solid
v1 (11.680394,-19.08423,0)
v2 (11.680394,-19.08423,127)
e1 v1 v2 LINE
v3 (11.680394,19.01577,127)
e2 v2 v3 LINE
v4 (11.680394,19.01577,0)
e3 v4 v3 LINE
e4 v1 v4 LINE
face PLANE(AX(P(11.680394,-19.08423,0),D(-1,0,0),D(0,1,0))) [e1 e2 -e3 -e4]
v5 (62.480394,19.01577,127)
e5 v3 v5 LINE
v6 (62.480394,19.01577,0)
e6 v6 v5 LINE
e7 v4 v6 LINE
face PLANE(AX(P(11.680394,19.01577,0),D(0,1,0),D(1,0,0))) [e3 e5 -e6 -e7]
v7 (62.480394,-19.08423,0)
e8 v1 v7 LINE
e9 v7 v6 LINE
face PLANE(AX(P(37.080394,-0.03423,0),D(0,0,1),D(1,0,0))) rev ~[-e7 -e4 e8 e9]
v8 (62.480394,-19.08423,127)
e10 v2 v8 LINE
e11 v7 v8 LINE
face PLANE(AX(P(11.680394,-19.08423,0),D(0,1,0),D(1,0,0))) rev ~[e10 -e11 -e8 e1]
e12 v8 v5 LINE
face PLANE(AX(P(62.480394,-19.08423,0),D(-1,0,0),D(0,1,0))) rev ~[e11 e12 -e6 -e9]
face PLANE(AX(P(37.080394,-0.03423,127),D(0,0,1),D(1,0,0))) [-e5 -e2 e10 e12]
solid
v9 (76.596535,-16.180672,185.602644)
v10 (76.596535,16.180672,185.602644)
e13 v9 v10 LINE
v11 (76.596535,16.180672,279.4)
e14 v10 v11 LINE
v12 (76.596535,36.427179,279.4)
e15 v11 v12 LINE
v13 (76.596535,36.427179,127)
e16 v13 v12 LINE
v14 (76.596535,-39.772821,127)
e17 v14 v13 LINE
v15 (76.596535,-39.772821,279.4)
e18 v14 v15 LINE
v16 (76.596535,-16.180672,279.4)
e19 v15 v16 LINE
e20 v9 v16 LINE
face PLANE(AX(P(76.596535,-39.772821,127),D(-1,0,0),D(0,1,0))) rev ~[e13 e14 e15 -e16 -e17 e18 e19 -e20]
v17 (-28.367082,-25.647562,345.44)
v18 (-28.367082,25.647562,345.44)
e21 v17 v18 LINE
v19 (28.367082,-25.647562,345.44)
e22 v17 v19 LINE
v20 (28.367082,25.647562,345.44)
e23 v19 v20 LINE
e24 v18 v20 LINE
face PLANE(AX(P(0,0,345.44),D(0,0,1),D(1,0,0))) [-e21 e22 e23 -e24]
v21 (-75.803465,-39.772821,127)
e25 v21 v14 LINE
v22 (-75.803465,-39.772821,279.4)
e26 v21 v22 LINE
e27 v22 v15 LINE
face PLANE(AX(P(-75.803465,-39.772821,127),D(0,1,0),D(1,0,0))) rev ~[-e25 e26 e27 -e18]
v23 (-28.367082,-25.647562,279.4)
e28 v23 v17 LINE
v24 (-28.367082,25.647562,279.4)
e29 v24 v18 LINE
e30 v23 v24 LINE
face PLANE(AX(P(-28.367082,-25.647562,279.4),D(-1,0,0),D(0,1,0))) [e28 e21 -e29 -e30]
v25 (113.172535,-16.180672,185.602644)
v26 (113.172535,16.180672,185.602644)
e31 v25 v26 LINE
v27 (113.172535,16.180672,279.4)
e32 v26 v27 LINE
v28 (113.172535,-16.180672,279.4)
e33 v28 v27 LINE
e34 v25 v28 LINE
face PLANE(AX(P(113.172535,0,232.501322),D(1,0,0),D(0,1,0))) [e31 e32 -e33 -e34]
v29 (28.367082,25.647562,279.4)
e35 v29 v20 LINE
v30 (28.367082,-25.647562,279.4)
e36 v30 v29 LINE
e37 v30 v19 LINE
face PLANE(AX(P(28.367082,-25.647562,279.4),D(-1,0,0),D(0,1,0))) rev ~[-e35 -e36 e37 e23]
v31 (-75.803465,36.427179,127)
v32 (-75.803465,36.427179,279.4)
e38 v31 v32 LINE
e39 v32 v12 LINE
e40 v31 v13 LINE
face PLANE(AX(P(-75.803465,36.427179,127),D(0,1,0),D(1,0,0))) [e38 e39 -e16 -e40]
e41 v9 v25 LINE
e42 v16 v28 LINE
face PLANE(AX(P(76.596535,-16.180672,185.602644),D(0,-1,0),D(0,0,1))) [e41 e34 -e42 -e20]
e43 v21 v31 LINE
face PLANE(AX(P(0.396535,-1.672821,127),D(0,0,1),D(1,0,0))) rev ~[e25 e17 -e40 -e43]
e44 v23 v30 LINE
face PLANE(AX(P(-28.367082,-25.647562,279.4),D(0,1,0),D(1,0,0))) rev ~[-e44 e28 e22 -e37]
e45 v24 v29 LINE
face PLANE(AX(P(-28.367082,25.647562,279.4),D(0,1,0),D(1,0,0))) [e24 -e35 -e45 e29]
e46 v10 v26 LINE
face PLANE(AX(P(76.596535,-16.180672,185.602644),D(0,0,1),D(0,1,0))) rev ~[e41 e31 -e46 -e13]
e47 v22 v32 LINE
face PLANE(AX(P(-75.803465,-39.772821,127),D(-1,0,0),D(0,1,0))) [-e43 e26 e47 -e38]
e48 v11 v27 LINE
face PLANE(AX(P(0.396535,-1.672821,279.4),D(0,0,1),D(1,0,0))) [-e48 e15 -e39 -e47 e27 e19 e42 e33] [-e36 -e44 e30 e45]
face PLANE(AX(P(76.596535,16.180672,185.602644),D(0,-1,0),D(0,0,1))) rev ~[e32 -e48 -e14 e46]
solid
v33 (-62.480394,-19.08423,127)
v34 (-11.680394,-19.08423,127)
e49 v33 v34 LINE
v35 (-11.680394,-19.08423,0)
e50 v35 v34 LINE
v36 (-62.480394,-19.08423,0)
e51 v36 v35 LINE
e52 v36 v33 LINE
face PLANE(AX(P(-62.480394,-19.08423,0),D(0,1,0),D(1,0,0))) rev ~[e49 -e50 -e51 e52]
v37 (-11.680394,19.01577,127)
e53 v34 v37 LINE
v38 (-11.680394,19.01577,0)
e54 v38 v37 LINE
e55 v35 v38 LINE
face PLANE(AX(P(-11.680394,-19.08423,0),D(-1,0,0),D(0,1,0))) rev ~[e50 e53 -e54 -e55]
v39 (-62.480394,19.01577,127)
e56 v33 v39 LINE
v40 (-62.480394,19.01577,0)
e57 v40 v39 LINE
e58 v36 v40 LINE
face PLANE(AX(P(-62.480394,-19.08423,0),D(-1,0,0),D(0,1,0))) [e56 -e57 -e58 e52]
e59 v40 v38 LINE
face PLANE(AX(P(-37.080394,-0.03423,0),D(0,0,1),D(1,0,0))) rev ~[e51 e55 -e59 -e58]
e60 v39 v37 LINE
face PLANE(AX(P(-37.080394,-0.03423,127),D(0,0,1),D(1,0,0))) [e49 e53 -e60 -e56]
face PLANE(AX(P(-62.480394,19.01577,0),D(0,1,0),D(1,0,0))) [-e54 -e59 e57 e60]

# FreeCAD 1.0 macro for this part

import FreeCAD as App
import Part
import Sketcher

V = App.Vector
Q = App.Units.Quantity

doc = App.newDocument("Part")
body = doc.addObject("PartDesign::Body", "Body")

sketch1 = body.newObject("Sketcher::SketchObject", "Sketch")
sketch1.AttachmentSupport = (doc.getObject("XY_Plane"), [""])
sketch1.MapMode = "FlatFace"
sketch1.addGeometry([
    Part.LineSegment(V(-62, 19, 0), V(-62, -19, 0)),
    Part.LineSegment(V(-62, -19, 0), V(-12, -19, 0)),
    Part.LineSegment(V(-12, -19, 0), V(-12, 19, 0)),
    Part.LineSegment(V(-12, 19, 0), V(-62, 19, 0)),
], False)
sketch1.addConstraint([
    Sketcher.Constraint("Coincident", 0, 2, 1, 1),
    Sketcher.Constraint("Coincident", 1, 2, 2, 1),
    Sketcher.Constraint("Coincident", 2, 2, 3, 1),
    Sketcher.Constraint("Coincident", 3, 2, 0, 1),
    Sketcher.Constraint("Vertical", 0),
    Sketcher.Constraint("Horizontal", 1),
    Sketcher.Constraint("Vertical", 2),
    Sketcher.Constraint("Horizontal", 3),
    Sketcher.Constraint("DistanceX", 1, 1, 1, 2, Q("2 in")),
    Sketcher.Constraint("DistanceY", 0, 2, 0, 1, Q("1.5 in")),
    Sketcher.Constraint("DistanceY", 0, 2, -1, 1, Q("19.08423 mm")),
    Sketcher.Constraint("DistanceX", 0, 2, -1, 1, Q("62.480394 mm")),
])
pad1 = body.newObject("PartDesign::Pad", "Pad")
pad1.Profile = sketch1
pad1.Length = Q("5 in")
body2 = doc.addObject("PartDesign::Body", "Body001")

sketch2 = body2.newObject("Sketcher::SketchObject", "Sketch001")
sketch2.AttachmentSupport = (doc.getObject("XY_Plane001"), [""])
sketch2.MapMode = "FlatFace"
sketch2.addGeometry([
    Part.LineSegment(V(12, 19, 0), V(12, -19, 0)),
    Part.LineSegment(V(12, -19, 0), V(62, -19, 0)),
    Part.LineSegment(V(62, -19, 0), V(62, 19, 0)),
    Part.LineSegment(V(62, 19, 0), V(12, 19, 0)),
], False)
sketch2.addConstraint([
    Sketcher.Constraint("Coincident", 0, 2, 1, 1),
    Sketcher.Constraint("Coincident", 1, 2, 2, 1),
    Sketcher.Constraint("Coincident", 2, 2, 3, 1),
    Sketcher.Constraint("Coincident", 3, 2, 0, 1),
    Sketcher.Constraint("Vertical", 0),
    Sketcher.Constraint("Horizontal", 1),
    Sketcher.Constraint("Vertical", 2),
    Sketcher.Constraint("Horizontal", 3),
    Sketcher.Constraint("DistanceX", 1, 1, 1, 2, Q("2 in")),
    Sketcher.Constraint("DistanceY", 0, 2, 0, 1, Q("1.5 in")),
    Sketcher.Constraint("DistanceY", 0, 2, -1, 1, Q("19.08423 mm")),
    Sketcher.Constraint("DistanceX", -1, 1, 0, 2, Q("11.680394 mm")),
])
pad2 = body2.newObject("PartDesign::Pad", "Pad001")
pad2.Profile = sketch2
pad2.Length = Q("5 in")
body3 = doc.addObject("PartDesign::Body", "Body002")

sketch3 = body3.newObject("Sketcher::SketchObject", "Sketch002")
sketch3.AttachmentSupport = (doc.getObject("XY_Plane002"), [""])
sketch3.MapMode = "FlatFace"
sketch3.AttachmentOffset = App.Placement(V(0, 0, 5 * 25.4), App.Rotation())
sketch3.addGeometry([
    Part.LineSegment(V(-76, 36, 0), V(-76, -40, 0)),
    Part.LineSegment(V(-76, -40, 0), V(77, -40, 0)),
    Part.LineSegment(V(77, -40, 0), V(77, 36, 0)),
    Part.LineSegment(V(77, 36, 0), V(-76, 36, 0)),
], False)
sketch3.addConstraint([
    Sketcher.Constraint("Coincident", 0, 2, 1, 1),
    Sketcher.Constraint("Coincident", 1, 2, 2, 1),
    Sketcher.Constraint("Coincident", 2, 2, 3, 1),
    Sketcher.Constraint("Coincident", 3, 2, 0, 1),
    Sketcher.Constraint("Vertical", 0),
    Sketcher.Constraint("Horizontal", 1),
    Sketcher.Constraint("Vertical", 2),
    Sketcher.Constraint("Horizontal", 3),
    Sketcher.Constraint("DistanceX", 1, 1, 1, 2, Q("6 in")),
    Sketcher.Constraint("DistanceY", 0, 2, 0, 1, Q("3 in")),
    Sketcher.Constraint("DistanceY", 0, 2, -1, 1, Q("39.772821 mm")),
    Sketcher.Constraint("DistanceX", 0, 2, -1, 1, Q("75.803465 mm")),
])
pad3 = body3.newObject("PartDesign::Pad", "Pad002")
pad3.Profile = sketch3
pad3.Length = Q("6 in")

sketch4 = body3.newObject("Sketcher::SketchObject", "Sketch003")
sketch4.AttachmentSupport = (doc.getObject("XY_Plane002"), [""])
sketch4.MapMode = "FlatFace"
sketch4.AttachmentOffset = App.Placement(V(0, 0, 11 * 25.4), App.Rotation())
sketch4.addGeometry([
    Part.LineSegment(V(-28, 26, 0), V(-28, -26, 0)),
    Part.LineSegment(V(-28, -26, 0), V(28, -26, 0)),
    Part.LineSegment(V(28, -26, 0), V(28, 26, 0)),
    Part.LineSegment(V(28, 26, 0), V(-28, 26, 0)),
], False)
sketch4.addConstraint([
    Sketcher.Constraint("Coincident", 0, 2, 1, 1),
    Sketcher.Constraint("Coincident", 1, 2, 2, 1),
    Sketcher.Constraint("Coincident", 2, 2, 3, 1),
    Sketcher.Constraint("Coincident", 3, 2, 0, 1),
    Sketcher.Constraint("Vertical", 0),
    Sketcher.Constraint("Horizontal", 1),
    Sketcher.Constraint("Vertical", 2),
    Sketcher.Constraint("Horizontal", 3),
    Sketcher.Constraint("Symmetric", 0, 2, 2, 2, -1, 1),
    Sketcher.Constraint("DistanceX", 1, 1, 1, 2, Q("56.734163 mm")),
    Sketcher.Constraint("DistanceY", 0, 2, 0, 1, Q("51.295124 mm")),
])
pad4 = body3.newObject("PartDesign::Pad", "Pad003")
pad4.Profile = sketch4
pad4.Length = Q("2.6 in")

sketch5 = body3.newObject("Sketcher::SketchObject", "Sketch004")
sketch5.AttachmentSupport = (doc.getObject("YZ_Plane002"), [""])
sketch5.MapMode = "FlatFace"
sketch5.AttachmentOffset = App.Placement(V(0, 0, 76.596535), App.Rotation())
sketch5.addGeometry([
    Part.LineSegment(V(-16, 279, 0), V(-16, 186, 0)),
    Part.LineSegment(V(-16, 186, 0), V(16, 186, 0)),
    Part.LineSegment(V(16, 186, 0), V(16, 279, 0)),
    Part.LineSegment(V(16, 279, 0), V(-16, 279, 0)),
], False)
sketch5.addConstraint([
    Sketcher.Constraint("Coincident", 0, 2, 1, 1),
    Sketcher.Constraint("Coincident", 1, 2, 2, 1),
    Sketcher.Constraint("Coincident", 2, 2, 3, 1),
    Sketcher.Constraint("Coincident", 3, 2, 0, 1),
    Sketcher.Constraint("Vertical", 0),
    Sketcher.Constraint("Horizontal", 1),
    Sketcher.Constraint("Vertical", 2),
    Sketcher.Constraint("Horizontal", 3),
    Sketcher.Constraint("DistanceY", -1, 1, 2, 2, Q("11 in")),
    Sketcher.Constraint("DistanceX", 1, 1, 1, 2, Q("32.361345 mm")),
    Sketcher.Constraint("DistanceY", 0, 2, 0, 1, Q("93.797356 mm")),
    Sketcher.Constraint("DistanceX", 0, 2, -1, 1, Q("16.180672 mm")),
])
pad5 = body3.newObject("PartDesign::Pad", "Pad004")
pad5.Profile = sketch5
pad5.Length = Q("1.44 in")

doc.recompute()
